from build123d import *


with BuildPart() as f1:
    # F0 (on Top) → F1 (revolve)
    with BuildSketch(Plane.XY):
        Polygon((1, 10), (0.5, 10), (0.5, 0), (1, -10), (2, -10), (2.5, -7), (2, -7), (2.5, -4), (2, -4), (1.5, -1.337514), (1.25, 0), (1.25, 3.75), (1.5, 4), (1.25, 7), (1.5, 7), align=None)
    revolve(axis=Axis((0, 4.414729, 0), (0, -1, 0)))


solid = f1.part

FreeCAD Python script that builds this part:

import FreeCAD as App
import Part
import Sketcher

V = App.Vector
Q = App.Units.Quantity

doc = App.newDocument("Part")
params = doc.addObject("Spreadsheet::Sheet", "Params")
for row, (alias, value) in enumerate([
    ("sketch1_width", "1 mm"),
    ("sketch1_height", "10 mm"),
    ("sketch1_width2", "0.5 mm"),
    ("sketch1_width3", "0.25 mm"),
    ("revolution_angle", "360 deg"),
], start=1):
    params.set(f"A{row}", alias)
    params.set(f"B{row}", "=" + value)
    params.setAlias(f"B{row}", alias)

body = doc.addObject("PartDesign::Body", "Body")

sketch1 = body.newObject("Sketcher::SketchObject", "Sketch")
sketch1.AttachmentSupport = (doc.getObject("XY_Plane"), [""])
sketch1.MapMode = "FlatFace"
sketch1.addGeometry(Part.LineSegment(V(1, 10, 0), V(0.5, 10, 0)), False)
sketch1.addGeometry(Part.LineSegment(V(0.5, 10, 0), V(0.5, 0, 0)), False)
sketch1.addGeometry(Part.LineSegment(V(0.5, 0, 0), V(1, -10, 0)), False)
sketch1.addGeometry(Part.LineSegment(V(1, -10, 0), V(2, -10, 0)), False)
sketch1.addGeometry(Part.LineSegment(V(2, -10, 0), V(2.5, -7, 0)), False)
sketch1.addGeometry(Part.LineSegment(V(2.5, -7, 0), V(2, -7, 0)), False)
sketch1.addGeometry(Part.LineSegment(V(2, -7, 0), V(2.5, -4, 0)), False)
sketch1.addGeometry(Part.LineSegment(V(2.5, -4, 0), V(2, -4, 0)), False)
sketch1.addGeometry(Part.LineSegment(V(2, -4, 0), V(1.5, -1.34, 0)), False)
sketch1.addGeometry(Part.LineSegment(V(1.5, -1.34, 0), V(1.25, 0, 0)), False)
sketch1.addGeometry(Part.LineSegment(V(1.25, 0, 0), V(1.25, 3.75, 0)), False)
sketch1.addGeometry(Part.LineSegment(V(1.25, 3.75, 0), V(1.5, 4, 0)), False)
sketch1.addGeometry(Part.LineSegment(V(1.5, 4, 0), V(1.25, 7, 0)), False)
sketch1.addGeometry(Part.LineSegment(V(1.25, 7, 0), V(1.5, 7, 0)), False)
sketch1.addGeometry(Part.LineSegment(V(1.5, 7, 0), V(1, 10, 0)), False)
sketch1.addConstraint(Sketcher.Constraint("Coincident", 0, 2, 1, 1))
sketch1.addConstraint(Sketcher.Constraint("Coincident", 1, 2, 2, 1))
sketch1.addConstraint(Sketcher.Constraint("Coincident", 2, 2, 3, 1))
sketch1.addConstraint(Sketcher.Constraint("Coincident", 3, 2, 4, 1))
sketch1.addConstraint(Sketcher.Constraint("Coincident", 4, 2, 5, 1))
sketch1.addConstraint(Sketcher.Constraint("Coincident", 5, 2, 6, 1))
sketch1.addConstraint(Sketcher.Constraint("Coincident", 6, 2, 7, 1))
sketch1.addConstraint(Sketcher.Constraint("Coincident", 7, 2, 8, 1))
sketch1.addConstraint(Sketcher.Constraint("Coincident", 8, 2, 9, 1))
sketch1.addConstraint(Sketcher.Constraint("Coincident", 9, 2, 10, 1))
sketch1.addConstraint(Sketcher.Constraint("Coincident", 10, 2, 11, 1))
sketch1.addConstraint(Sketcher.Constraint("Coincident", 11, 2, 12, 1))
sketch1.addConstraint(Sketcher.Constraint("Coincident", 12, 2, 13, 1))
sketch1.addConstraint(Sketcher.Constraint("Coincident", 13, 2, 14, 1))
sketch1.addConstraint(Sketcher.Constraint("Coincident", 14, 2, 0, 1))
sketch1.addConstraint(Sketcher.Constraint("Horizontal", 0))
sketch1.addConstraint(Sketcher.Constraint("Vertical", 1))
sketch1.addConstraint(Sketcher.Constraint("Horizontal", 3))
sketch1.addConstraint(Sketcher.Constraint("Horizontal", 5))
sketch1.addConstraint(Sketcher.Constraint("Horizontal", 7))
sketch1.addConstraint(Sketcher.Constraint("Vertical", 10))
sketch1.addConstraint(Sketcher.Constraint("Horizontal", 13))
sketch1.addConstraint(Sketcher.Constraint("Symmetric", 2, 2, 14, 2, -1))
sketch1.addConstraint(Sketcher.Constraint("PointOnObject", 1, 2, -1))
sketch1.addConstraint(Sketcher.Constraint("PointOnObject", 9, 2, -1))
sketch1.addConstraint(Sketcher.Constraint("Parallel", 4, 6))
sketch1.addConstraint(Sketcher.Constraint("Vertical", 3, 2, 5, 2))
sketch1.addConstraint(Sketcher.Constraint("Vertical", 4, 2, 6, 2))
sketch1.addConstraint(Sketcher.Constraint("Vertical", 5, 2, 7, 2))
sketch1.addConstraint(Sketcher.Constraint("Vertical", 8, 2, 11, 2))
sketch1.addConstraint(Sketcher.Constraint("Vertical", 10, 2, 12, 2))
sketch1.addConstraint(Sketcher.Constraint("Vertical", 11, 2, 13, 2))
sketch1.addConstraint(Sketcher.Constraint("Equal", 0, 5))
sketch1.addConstraint(Sketcher.Constraint("Equal", 6, 14))
sketch1.addConstraint(Sketcher.Constraint("DistanceX", 3, 1, 3, 2, 1.0))
sketch1.addConstraint(Sketcher.Constraint("DistanceY", 1, 2, 1, 1, 10.0))
sketch1.addConstraint(Sketcher.Constraint("Angle", 11, Q("45 deg")))
sketch1.addConstraint(Sketcher.Constraint("DistanceX", 0, 2, 0, 1, 0.5))
sketch1.addConstraint(Sketcher.Constraint("DistanceX", -1, 1, 2, 2, 1.0))
sketch1.addConstraint(Sketcher.Constraint("DistanceY", 4, 2, -1, 1, 7.0))
sketch1.addConstraint(Sketcher.Constraint("DistanceY", -1, 1, 11, 2, 4.0))
sketch1.addConstraint(Sketcher.Constraint("DistanceY", -1, 1, 12, 2, 7.0))
sketch1.addConstraint(Sketcher.Constraint("DistanceX", 13, 1, 13, 2, 0.25))
sketch1.addConstraint(Sketcher.Constraint("Distance", 8, 2.709028))
sketch1.setExpression("Constraints[34]", "Params.sketch1_width")
sketch1.setExpression("Constraints[35]", "Params.sketch1_height")
sketch1.setExpression("Constraints[37]", "Params.sketch1_width2")
sketch1.setExpression("Constraints[42]", "Params.sketch1_width3")
revolution = body.newObject("PartDesign::Revolution", "Revolution")
revolution.Profile = sketch1
revolution.ReferenceAxis = (sketch1, ["V_Axis"])
revolution.setExpression("Angle", "Params.revolution_angle")

doc.recompute()
